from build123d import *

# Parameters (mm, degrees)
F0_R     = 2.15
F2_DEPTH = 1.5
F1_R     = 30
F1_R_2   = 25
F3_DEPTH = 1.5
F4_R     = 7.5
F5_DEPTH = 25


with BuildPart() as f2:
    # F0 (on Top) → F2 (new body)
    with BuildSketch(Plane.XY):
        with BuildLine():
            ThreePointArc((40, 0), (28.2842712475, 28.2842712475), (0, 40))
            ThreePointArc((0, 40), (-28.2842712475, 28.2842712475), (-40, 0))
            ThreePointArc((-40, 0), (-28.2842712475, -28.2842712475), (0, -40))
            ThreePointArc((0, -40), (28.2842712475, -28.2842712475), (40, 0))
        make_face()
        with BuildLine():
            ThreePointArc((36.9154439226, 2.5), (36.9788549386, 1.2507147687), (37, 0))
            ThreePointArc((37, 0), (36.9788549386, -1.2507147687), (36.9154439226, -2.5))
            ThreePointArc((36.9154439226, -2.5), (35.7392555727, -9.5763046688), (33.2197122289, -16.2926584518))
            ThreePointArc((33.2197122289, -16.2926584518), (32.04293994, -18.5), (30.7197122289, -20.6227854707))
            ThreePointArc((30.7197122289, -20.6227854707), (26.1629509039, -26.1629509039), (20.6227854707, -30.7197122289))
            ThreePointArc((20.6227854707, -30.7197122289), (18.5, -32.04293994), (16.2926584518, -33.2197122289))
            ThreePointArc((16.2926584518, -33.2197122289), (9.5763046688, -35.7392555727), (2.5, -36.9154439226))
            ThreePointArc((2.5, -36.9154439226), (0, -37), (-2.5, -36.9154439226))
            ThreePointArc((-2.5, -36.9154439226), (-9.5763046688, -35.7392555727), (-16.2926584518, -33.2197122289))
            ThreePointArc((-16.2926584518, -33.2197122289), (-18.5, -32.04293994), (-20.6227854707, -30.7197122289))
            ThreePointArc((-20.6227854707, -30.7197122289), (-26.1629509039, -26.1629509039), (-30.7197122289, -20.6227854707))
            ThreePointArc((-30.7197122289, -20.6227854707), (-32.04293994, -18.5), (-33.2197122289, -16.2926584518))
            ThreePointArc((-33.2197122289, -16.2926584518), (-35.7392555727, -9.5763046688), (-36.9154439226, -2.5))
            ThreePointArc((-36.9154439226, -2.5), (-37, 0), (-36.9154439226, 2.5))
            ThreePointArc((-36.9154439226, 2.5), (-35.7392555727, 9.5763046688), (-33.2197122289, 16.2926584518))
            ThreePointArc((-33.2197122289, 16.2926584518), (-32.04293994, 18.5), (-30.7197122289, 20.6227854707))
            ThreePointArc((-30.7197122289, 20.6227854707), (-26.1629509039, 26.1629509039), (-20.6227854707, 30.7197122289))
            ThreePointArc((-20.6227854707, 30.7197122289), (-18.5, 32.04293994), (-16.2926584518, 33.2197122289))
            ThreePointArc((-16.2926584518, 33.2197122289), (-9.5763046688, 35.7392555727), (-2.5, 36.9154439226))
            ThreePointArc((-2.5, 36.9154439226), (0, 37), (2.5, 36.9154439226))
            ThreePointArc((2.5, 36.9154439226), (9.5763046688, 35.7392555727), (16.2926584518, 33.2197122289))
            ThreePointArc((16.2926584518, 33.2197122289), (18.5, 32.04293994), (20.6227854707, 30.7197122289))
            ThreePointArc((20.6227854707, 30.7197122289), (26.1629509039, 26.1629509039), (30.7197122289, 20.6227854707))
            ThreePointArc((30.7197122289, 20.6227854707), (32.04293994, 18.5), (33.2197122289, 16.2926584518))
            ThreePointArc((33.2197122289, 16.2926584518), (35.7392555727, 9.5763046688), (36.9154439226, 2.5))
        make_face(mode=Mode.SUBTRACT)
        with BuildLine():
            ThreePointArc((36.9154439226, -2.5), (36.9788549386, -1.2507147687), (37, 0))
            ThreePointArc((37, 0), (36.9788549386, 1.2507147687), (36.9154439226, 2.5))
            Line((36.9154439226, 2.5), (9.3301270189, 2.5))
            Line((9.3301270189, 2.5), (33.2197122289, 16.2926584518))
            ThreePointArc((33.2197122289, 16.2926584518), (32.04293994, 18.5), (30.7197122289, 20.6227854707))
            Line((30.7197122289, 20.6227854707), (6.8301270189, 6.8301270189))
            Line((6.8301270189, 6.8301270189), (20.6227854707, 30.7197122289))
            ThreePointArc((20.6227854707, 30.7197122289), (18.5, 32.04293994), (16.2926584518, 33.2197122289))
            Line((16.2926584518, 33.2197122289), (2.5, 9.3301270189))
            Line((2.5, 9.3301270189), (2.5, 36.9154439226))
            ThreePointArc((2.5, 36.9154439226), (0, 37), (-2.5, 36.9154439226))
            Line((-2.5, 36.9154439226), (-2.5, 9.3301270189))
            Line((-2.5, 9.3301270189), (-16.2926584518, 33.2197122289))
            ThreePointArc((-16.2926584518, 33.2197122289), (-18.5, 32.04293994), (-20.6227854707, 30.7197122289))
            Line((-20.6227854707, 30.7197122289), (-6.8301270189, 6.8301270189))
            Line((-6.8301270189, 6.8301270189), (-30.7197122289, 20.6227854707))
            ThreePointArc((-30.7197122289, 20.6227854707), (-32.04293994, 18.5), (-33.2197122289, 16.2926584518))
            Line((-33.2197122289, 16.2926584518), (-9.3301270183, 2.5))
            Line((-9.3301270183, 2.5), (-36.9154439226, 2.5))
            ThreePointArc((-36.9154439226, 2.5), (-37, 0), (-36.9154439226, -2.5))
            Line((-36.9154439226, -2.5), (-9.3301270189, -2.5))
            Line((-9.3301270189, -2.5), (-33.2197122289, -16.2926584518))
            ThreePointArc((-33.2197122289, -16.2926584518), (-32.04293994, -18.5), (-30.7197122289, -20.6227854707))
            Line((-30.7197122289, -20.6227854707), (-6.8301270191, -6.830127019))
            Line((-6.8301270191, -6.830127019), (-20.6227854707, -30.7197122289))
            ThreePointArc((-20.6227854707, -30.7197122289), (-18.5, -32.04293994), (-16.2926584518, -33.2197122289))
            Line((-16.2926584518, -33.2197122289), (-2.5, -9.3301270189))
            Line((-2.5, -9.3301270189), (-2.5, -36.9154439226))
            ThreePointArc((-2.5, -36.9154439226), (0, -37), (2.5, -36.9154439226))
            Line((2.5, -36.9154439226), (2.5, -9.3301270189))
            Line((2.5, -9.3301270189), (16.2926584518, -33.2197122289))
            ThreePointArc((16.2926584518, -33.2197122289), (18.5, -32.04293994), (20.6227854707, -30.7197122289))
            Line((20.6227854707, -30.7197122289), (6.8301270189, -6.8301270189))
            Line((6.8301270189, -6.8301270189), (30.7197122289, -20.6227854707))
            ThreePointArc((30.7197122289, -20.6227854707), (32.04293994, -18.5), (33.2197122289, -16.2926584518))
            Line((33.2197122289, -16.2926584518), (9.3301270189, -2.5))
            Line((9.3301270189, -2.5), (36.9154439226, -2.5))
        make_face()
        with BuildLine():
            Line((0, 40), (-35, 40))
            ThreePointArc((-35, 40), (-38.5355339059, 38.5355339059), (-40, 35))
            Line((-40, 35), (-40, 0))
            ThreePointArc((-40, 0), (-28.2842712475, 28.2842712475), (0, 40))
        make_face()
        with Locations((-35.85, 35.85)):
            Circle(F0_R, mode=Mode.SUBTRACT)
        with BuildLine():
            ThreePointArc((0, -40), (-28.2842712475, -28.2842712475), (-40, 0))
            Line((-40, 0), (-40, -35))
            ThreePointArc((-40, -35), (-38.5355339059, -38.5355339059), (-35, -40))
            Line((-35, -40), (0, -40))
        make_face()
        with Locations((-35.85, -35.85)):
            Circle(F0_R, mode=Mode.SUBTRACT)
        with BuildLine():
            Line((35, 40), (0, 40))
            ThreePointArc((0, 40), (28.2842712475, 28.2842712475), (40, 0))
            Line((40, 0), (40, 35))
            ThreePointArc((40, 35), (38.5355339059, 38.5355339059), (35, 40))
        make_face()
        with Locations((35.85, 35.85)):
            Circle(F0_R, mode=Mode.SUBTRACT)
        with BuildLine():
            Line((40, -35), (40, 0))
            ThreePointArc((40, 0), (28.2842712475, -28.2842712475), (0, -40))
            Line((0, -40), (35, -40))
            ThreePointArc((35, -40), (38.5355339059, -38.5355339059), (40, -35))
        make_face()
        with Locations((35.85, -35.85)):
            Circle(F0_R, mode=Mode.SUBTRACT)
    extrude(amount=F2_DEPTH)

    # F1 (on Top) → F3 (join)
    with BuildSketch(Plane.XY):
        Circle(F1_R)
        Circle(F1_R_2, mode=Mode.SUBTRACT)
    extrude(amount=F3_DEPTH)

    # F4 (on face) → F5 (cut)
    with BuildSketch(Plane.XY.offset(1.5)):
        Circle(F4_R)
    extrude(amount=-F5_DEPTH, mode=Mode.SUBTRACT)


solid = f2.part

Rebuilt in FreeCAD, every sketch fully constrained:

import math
import FreeCAD as App
import Part
import Sketcher

V = App.Vector
Q = App.Units.Quantity

doc = App.newDocument("Part")
params = doc.addObject("Spreadsheet::Sheet", "Params")
for row, (alias, value) in enumerate([
    ("sketch1_radius", "5 mm"),
    ("sketch1_radius2", "37 mm"),
    ("sketch1_diameter", "4.3 mm"),
    ("sketch1_width", "70 mm"),
    ("pad1_length", "1.5 mm"),
    ("sketch2_diameter", "60 mm"),
    ("sketch2_diameter2", "50 mm"),
    ("pad2_length", "1.5 mm"),
    ("sketch3_diameter", "15 mm"),
    ("pocket1_length", "25 mm"),
], start=1):
    params.set(f"A{row}", alias)
    params.set(f"B{row}", "=" + value)
    params.setAlias(f"B{row}", alias)

body = doc.addObject("PartDesign::Body", "Body")

# Sketch on XY plane
sketch1 = body.newObject("Sketcher::SketchObject", "Sketch")
sketch1.AttachmentSupport = (doc.getObject("XY_Plane"), [""])
sketch1.MapMode = "FlatFace"
sketch1.addGeometry([
    Part.LineSegment(V(-35, -40, 0), V(35, -40, 0)),  # 0
    Part.ArcOfCircle(Part.Circle(V(35, -35, 0), V(0, 0, 1), 5), math.radians(-90), math.radians(0)),  # 1
    Part.LineSegment(V(40, -35, 0), V(40, 35, 0)),  # 2
    Part.ArcOfCircle(Part.Circle(V(35, 35, 0), V(0, 0, 1), 5), math.radians(0), math.radians(90)),  # 3
    Part.LineSegment(V(35, 40, 0), V(-35, 40, 0)),  # 4
    Part.ArcOfCircle(Part.Circle(V(-35, 35, 0), V(0, 0, 1), 5), math.radians(90), math.radians(180)),  # 5
    Part.LineSegment(V(-40, 35, 0), V(-40, -35, 0)),  # 6
    Part.ArcOfCircle(Part.Circle(V(-35, -35, 0), V(0, 0, 1), 5), math.radians(180), math.radians(270)),  # 7
    Part.Circle(V(-35.85, -35.85, 0), V(0, 0, 1), 2.15),  # 8
    Part.ArcOfCircle(Part.Circle(V(0, 0, 0), V(0, 0, 1), 37), math.radians(-116.125712), math.radians(-93.874288)),  # 9
    Part.LineSegment(V(-16.292658, -33.219712, 0), V(-2.5, -9.330127, 0)),  # 10
    Part.LineSegment(V(-2.5, -9.330127, 0), V(-2.5, -36.915444, 0)),  # 11
    Part.ArcOfCircle(Part.Circle(V(0, 0, 0), V(0, 0, 1), 37), math.radians(-176.125712), math.radians(-153.874288)),  # 12
    Part.LineSegment(V(-36.915444, -2.5, 0), V(-9.330127, -2.5, 0)),  # 13
    Part.LineSegment(V(-9.330127, -2.5, 0), V(-33.219712, -16.292658, 0)),  # 14
    Part.ArcOfCircle(Part.Circle(V(0, 0, 0), V(0, 0, 1), 37), math.radians(-146.125712), math.radians(-123.874288)),  # 15
    Part.LineSegment(V(-30.719712, -20.622785, 0), V(-6.830127, -6.830127, 0)),  # 16
    Part.LineSegment(V(-6.830127, -6.830127, 0), V(-20.622785, -30.719712, 0)),  # 17
    Part.ArcOfCircle(Part.Circle(V(0, 0, 0), V(0, 0, 1), 37), math.radians(-86.125712), math.radians(-63.874288)),  # 18
    Part.LineSegment(V(2.5, -36.915444, 0), V(2.5, -9.330127, 0)),  # 19
    Part.LineSegment(V(2.5, -9.330127, 0), V(16.292658, -33.219712, 0)),  # 20
    Part.Circle(V(35.85, -35.85, 0), V(0, 0, 1), 2.15),  # 21
    Part.ArcOfCircle(Part.Circle(V(0, 0, 0), V(0, 0, 1), 37), math.radians(-56.125712), math.radians(-33.874288)),  # 22
    Part.LineSegment(V(20.622785, -30.719712, 0), V(6.830127, -6.830127, 0)),  # 23
    Part.LineSegment(V(6.830127, -6.830127, 0), V(30.719712, -20.622785, 0)),  # 24
    Part.ArcOfCircle(Part.Circle(V(0, 0, 0), V(0, 0, 1), 37), math.radians(-26.125712), math.radians(-3.874288)),  # 25
    Part.LineSegment(V(33.219712, -16.292658, 0), V(9.330127, -2.5, 0)),  # 26
    Part.LineSegment(V(9.330127, -2.5, 0), V(36.915444, -2.5, 0)),  # 27
    Part.ArcOfCircle(Part.Circle(V(0, 0, 0), V(0, 0, 1), 37), math.radians(153.874288), math.radians(176.125712)),  # 28
    Part.LineSegment(V(-33.219712, 16.292658, 0), V(-9.330127, 2.5, 0)),  # 29
    Part.LineSegment(V(-9.330127, 2.5, 0), V(-36.915444, 2.5, 0)),  # 30
    Part.ArcOfCircle(Part.Circle(V(0, 0, 0), V(0, 0, 1), 37), math.radians(123.874288), math.radians(146.125712)),  # 31
    Part.LineSegment(V(-20.622785, 30.719712, 0), V(-6.830127, 6.830127, 0)),  # 32
    Part.LineSegment(V(-6.830127, 6.830127, 0), V(-30.719712, 20.622785, 0)),  # 33
    Part.Circle(V(-35.85, 35.85, 0), V(0, 0, 1), 2.15),  # 34
    Part.ArcOfCircle(Part.Circle(V(0, 0, 0), V(0, 0, 1), 37), math.radians(93.874288), math.radians(116.125712)),  # 35
    Part.LineSegment(V(-2.5, 36.915444, 0), V(-2.5, 9.330127, 0)),  # 36
    Part.LineSegment(V(-2.5, 9.330127, 0), V(-16.292658, 33.219712, 0)),  # 37
    Part.ArcOfCircle(Part.Circle(V(0, 0, 0), V(0, 0, 1), 37), math.radians(33.874288), math.radians(56.125712)),  # 38
    Part.LineSegment(V(30.719712, 20.622785, 0), V(6.830127, 6.830127, 0)),  # 39
    Part.LineSegment(V(6.830127, 6.830127, 0), V(20.622785, 30.719712, 0)),  # 40
    Part.ArcOfCircle(Part.Circle(V(0, 0, 0), V(0, 0, 1), 37), math.radians(3.874288), math.radians(26.125712)),  # 41
    Part.LineSegment(V(36.915444, 2.5, 0), V(9.330127, 2.5, 0)),  # 42
    Part.LineSegment(V(9.330127, 2.5, 0), V(33.219712, 16.292658, 0)),  # 43
    Part.ArcOfCircle(Part.Circle(V(0, 0, 0), V(0, 0, 1), 37), math.radians(63.874288), math.radians(86.125712)),  # 44
    Part.LineSegment(V(16.292658, 33.219712, 0), V(2.5, 9.330127, 0)),  # 45
    Part.LineSegment(V(2.5, 9.330127, 0), V(2.5, 36.915444, 0)),  # 46
    Part.Circle(V(35.85, 35.85, 0), V(0, 0, 1), 2.15),  # 47
], False)
sketch1.addConstraint([
    Sketcher.Constraint("Tangent", 0, 2, 1, 1),
    Sketcher.Constraint("Tangent", 1, 2, 2, 1),
    Sketcher.Constraint("Tangent", 2, 2, 3, 1),
    Sketcher.Constraint("Tangent", 3, 2, 4, 1),
    Sketcher.Constraint("Tangent", 4, 2, 5, 1),
    Sketcher.Constraint("Tangent", 5, 2, 6, 1),
    Sketcher.Constraint("Tangent", 6, 2, 7, 1),
    Sketcher.Constraint("Tangent", 7, 2, 0, 1),
    Sketcher.Constraint("Coincident", 9, 1, 10, 1),
    Sketcher.Constraint("Coincident", 10, 2, 11, 1),
    Sketcher.Constraint("Coincident", 11, 2, 9, 2),
    Sketcher.Constraint("Coincident", 12, 1, 13, 1),
    Sketcher.Constraint("Coincident", 13, 2, 14, 1),
    Sketcher.Constraint("Coincident", 14, 2, 12, 2),
    Sketcher.Constraint("Coincident", 15, 1, 16, 1),
    Sketcher.Constraint("Coincident", 16, 2, 17, 1),
    Sketcher.Constraint("Coincident", 17, 2, 15, 2),
    Sketcher.Constraint("Coincident", 18, 1, 19, 1),
    Sketcher.Constraint("Coincident", 19, 2, 20, 1),
    Sketcher.Constraint("Coincident", 20, 2, 18, 2),
    Sketcher.Constraint("Coincident", 22, 1, 23, 1),
    Sketcher.Constraint("Coincident", 23, 2, 24, 1),
    Sketcher.Constraint("Coincident", 24, 2, 22, 2),
    Sketcher.Constraint("Coincident", 25, 1, 26, 1),
    Sketcher.Constraint("Coincident", 26, 2, 27, 1),
    Sketcher.Constraint("Coincident", 27, 2, 25, 2),
    Sketcher.Constraint("Coincident", 28, 1, 29, 1),
    Sketcher.Constraint("Coincident", 29, 2, 30, 1),
    Sketcher.Constraint("Coincident", 30, 2, 28, 2),
    Sketcher.Constraint("Coincident", 31, 1, 32, 1),
    Sketcher.Constraint("Coincident", 32, 2, 33, 1),
    Sketcher.Constraint("Coincident", 33, 2, 31, 2),
    Sketcher.Constraint("Coincident", 35, 1, 36, 1),
    Sketcher.Constraint("Coincident", 36, 2, 37, 1),
    Sketcher.Constraint("Coincident", 37, 2, 35, 2),
    Sketcher.Constraint("Coincident", 38, 1, 39, 1),
    Sketcher.Constraint("Coincident", 39, 2, 40, 1),
    Sketcher.Constraint("Coincident", 40, 2, 38, 2),
    Sketcher.Constraint("Coincident", 41, 1, 42, 1),
    Sketcher.Constraint("Coincident", 42, 2, 43, 1),
    Sketcher.Constraint("Coincident", 43, 2, 41, 2),
    Sketcher.Constraint("Coincident", 44, 1, 45, 1),
    Sketcher.Constraint("Coincident", 45, 2, 46, 1),
    Sketcher.Constraint("Coincident", 46, 2, 44, 2),
    Sketcher.Constraint("Horizontal", 0),
    Sketcher.Constraint("Vertical", 2),
    Sketcher.Constraint("Horizontal", 4),
    Sketcher.Constraint("Vertical", 6),
    Sketcher.Constraint("Vertical", 11),
    Sketcher.Constraint("Horizontal", 13),
    Sketcher.Constraint("Vertical", 19),
    Sketcher.Constraint("Horizontal", 27),
    Sketcher.Constraint("Horizontal", 30),
    Sketcher.Constraint("Vertical", 36),
    Sketcher.Constraint("Horizontal", 42),
    Sketcher.Constraint("Vertical", 46),
    Sketcher.Constraint("Coincident", 9, 3, -1, 1),
    Sketcher.Constraint("Coincident", 12, 3, -1, 1),
    Sketcher.Constraint("Coincident", 15, 3, -1, 1),
    Sketcher.Constraint("Coincident", 18, 3, -1, 1),
    Sketcher.Constraint("Coincident", 22, 3, -1, 1),
    Sketcher.Constraint("Coincident", 25, 3, -1, 1),
    Sketcher.Constraint("Coincident", 28, 3, -1, 1),
    Sketcher.Constraint("Coincident", 31, 3, -1, 1),
    Sketcher.Constraint("Coincident", 35, 3, -1, 1),
    Sketcher.Constraint("Coincident", 38, 3, -1, 1),
    Sketcher.Constraint("Coincident", 41, 3, -1, 1),
    Sketcher.Constraint("Coincident", 44, 3, -1, 1),
    Sketcher.Constraint("Equal", 1, 3),
    Sketcher.Constraint("Equal", 3, 5),
    Sketcher.Constraint("Equal", 5, 7),
    Sketcher.Constraint("Equal", 9, 12),
    Sketcher.Constraint("Equal", 12, 15),
    Sketcher.Constraint("Equal", 15, 18),
    Sketcher.Constraint("Equal", 8, 21),
    Sketcher.Constraint("Equal", 18, 22),
    Sketcher.Constraint("Equal", 22, 25),
    Sketcher.Constraint("Equal", 25, 28),
    Sketcher.Constraint("Equal", 28, 31),
    Sketcher.Constraint("Equal", 21, 34),
    Sketcher.Constraint("Equal", 31, 35),
    Sketcher.Constraint("Equal", 35, 38),
    Sketcher.Constraint("Equal", 38, 41),
    Sketcher.Constraint("Equal", 41, 44),
    Sketcher.Constraint("Equal", 34, 47),
    Sketcher.Constraint("Symmetric", 1, 3, 5, 3, -1, 1),
    Sketcher.Constraint("Symmetric", 21, 3, 34, 3, -1, 1),
    Sketcher.Constraint("Symmetric", 8, 3, 47, 3, -1, 1),
    Sketcher.Constraint("Symmetric", 26, 2, 29, 2, -1, 1),
    Sketcher.Constraint("Symmetric", 23, 2, 32, 2, -1, 1),
    Sketcher.Constraint("Symmetric", 19, 2, 36, 2, -1, 1),
    Sketcher.Constraint("Symmetric", 16, 2, 39, 2, -1, 1),
    Sketcher.Constraint("Symmetric", 13, 2, 42, 2, -1, 1),
    Sketcher.Constraint("Symmetric", 10, 2, 45, 2, -1, 1),
    Sketcher.Constraint("Symmetric", 8, 3, 21, 3, -2),
    Sketcher.Constraint("Symmetric", 10, 2, 19, 2, -2),
    Sketcher.Constraint("Symmetric", 16, 2, 23, 2, -2),
    Sketcher.Constraint("Symmetric", 13, 2, 26, 2, -2),
    Sketcher.Constraint("Parallel", 14, 16),
    Sketcher.Constraint("Parallel", 10, 17),
    Sketcher.Constraint("Perpendicular", 16, 20),
    Sketcher.Constraint("Parallel", 20, 23),
    Sketcher.Constraint("Perpendicular", 17, 24),
    Sketcher.Constraint("Parallel", 24, 26),
    Sketcher.Constraint("Parallel", 26, 29),
    Sketcher.Constraint("Parallel", 23, 32),
    Sketcher.Constraint("Parallel", 29, 33),
    Sketcher.Constraint("Parallel", 32, 37),
    Sketcher.Constraint("Perpendicular", 37, 39),
    Sketcher.Constraint("Perpendicular", 33, 40),
    Sketcher.Constraint("Parallel", 39, 43),
    Sketcher.Constraint("Parallel", 40, 45),
    Sketcher.Constraint("Horizontal", 9, 1, 20, 2),
    Sketcher.Constraint("Equal", 4, 2),
    Sketcher.Constraint("Equal", 42, 11),
    Sketcher.Constraint("Equal", 10, 14),
    Sketcher.Constraint("Equal", 14, 16),
    Sketcher.Constraint("Equal", 16, 17),
    Sketcher.Constraint("Radius", 1, Q("5 mm")),
    Sketcher.Constraint("Radius", 9, Q("37 mm")),
    Sketcher.Constraint("Diameter", 8, Q("4.3 mm")),
    Sketcher.Constraint("DistanceX", 0, 1, 0, 2, Q("70 mm")),
    Sketcher.Constraint("Angle", 10, Q("60 deg")),
    Sketcher.Constraint("DistanceX", 10, 2, -1, 1, Q("2.5 mm")),
    Sketcher.Constraint("DistanceX", 8, 3, -1, 1, Q("35.85 mm")),
    Sketcher.Constraint("DistanceY", 8, 3, -1, 1, Q("35.85 mm")),
    Sketcher.Constraint("DistanceX", 13, 1, 13, 2, Q("27.585317 mm")),
])
sketch1.setExpression("Constraints[118]", "Params.sketch1_radius")
sketch1.setExpression("Constraints[119]", "Params.sketch1_radius2")
sketch1.setExpression("Constraints[120]", "Params.sketch1_diameter")
sketch1.setExpression("Constraints[121]", "Params.sketch1_width")
pad1 = body.newObject("PartDesign::Pad", "Pad")
pad1.Profile = sketch1
pad1.setExpression("Length", "Params.pad1_length")

# Sketch on XY plane
sketch2 = body.newObject("Sketcher::SketchObject", "Sketch001")
sketch2.AttachmentSupport = (doc.getObject("XY_Plane"), [""])
sketch2.MapMode = "FlatFace"
sketch2.addGeometry([
    Part.Circle(V(0, 0, 0), V(0, 0, 1), 30),
    Part.Circle(V(0, 0, 0), V(0, 0, 1), 25),
], False)
sketch2.addConstraint([
    Sketcher.Constraint("Coincident", 0, 3, -1, 1),
    Sketcher.Constraint("Coincident", 1, 3, -1, 1),
    Sketcher.Constraint("Diameter", 0, Q("60 mm")),
    Sketcher.Constraint("Diameter", 1, Q("50 mm")),
])
sketch2.setExpression("Constraints[2]", "Params.sketch2_diameter")
sketch2.setExpression("Constraints[3]", "Params.sketch2_diameter2")
pad2 = body.newObject("PartDesign::Pad", "Pad001")
pad2.Profile = sketch2
pad2.setExpression("Length", "Params.pad2_length")

# Sketch on XY plane
sketch3 = body.newObject("Sketcher::SketchObject", "Sketch002")
sketch3.AttachmentSupport = (doc.getObject("XY_Plane"), [""])
sketch3.MapMode = "FlatFace"
sketch3.AttachmentOffset = App.Placement(V(0, 0, 1.5), App.Rotation())
sketch3.addGeometry(Part.Circle(V(0, 0, 0), V(0, 0, 1), 7.5), False)
sketch3.addConstraint([
    Sketcher.Constraint("Coincident", 0, 3, -1, 1),
    Sketcher.Constraint("Diameter", 0, Q("15 mm")),
])
sketch3.setExpression("Constraints[1]", "Params.sketch3_diameter")
pocket1 = body.newObject("PartDesign::Pocket", "Pocket")
pocket1.Profile = sketch3
pocket1.setExpression("Length", "Params.pocket1_length")

doc.recompute()
